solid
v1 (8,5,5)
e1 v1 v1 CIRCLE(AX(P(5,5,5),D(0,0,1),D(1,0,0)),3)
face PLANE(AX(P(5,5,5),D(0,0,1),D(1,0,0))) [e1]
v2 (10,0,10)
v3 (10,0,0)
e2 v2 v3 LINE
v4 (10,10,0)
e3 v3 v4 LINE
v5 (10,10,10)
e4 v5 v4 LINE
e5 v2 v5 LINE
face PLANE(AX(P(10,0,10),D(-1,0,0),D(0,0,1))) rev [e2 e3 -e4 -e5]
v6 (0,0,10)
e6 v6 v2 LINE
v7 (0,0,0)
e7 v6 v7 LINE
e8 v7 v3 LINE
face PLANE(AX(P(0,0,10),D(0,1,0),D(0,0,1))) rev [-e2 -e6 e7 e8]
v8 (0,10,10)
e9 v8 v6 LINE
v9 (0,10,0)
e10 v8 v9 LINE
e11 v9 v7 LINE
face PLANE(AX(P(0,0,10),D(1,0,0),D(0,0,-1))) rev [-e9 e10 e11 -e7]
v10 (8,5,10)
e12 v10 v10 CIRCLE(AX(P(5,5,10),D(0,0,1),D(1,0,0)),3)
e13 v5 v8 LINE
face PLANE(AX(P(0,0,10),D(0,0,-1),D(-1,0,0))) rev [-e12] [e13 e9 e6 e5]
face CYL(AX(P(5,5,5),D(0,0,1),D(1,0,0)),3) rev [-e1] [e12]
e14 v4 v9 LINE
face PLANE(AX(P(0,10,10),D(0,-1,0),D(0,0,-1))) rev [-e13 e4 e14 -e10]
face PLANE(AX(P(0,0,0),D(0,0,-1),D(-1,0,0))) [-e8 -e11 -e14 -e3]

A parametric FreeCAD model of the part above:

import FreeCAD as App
import Part
import Sketcher
Q = App.Units.Quantity

doc = App.newDocument("Part")
body = doc.addObject("PartDesign::Body", "Body")

sketch1 = body.newObject("Sketcher::SketchObject", "Sketch")
sketch1.AttachmentSupport = (doc.getObject("XY_Plane"), [""])
sketch1.MapMode = "FlatFace"
sketch1.addGeometry([
    Part.LineSegment(App.Vector(0, 10, 0), App.Vector(0, 0, 0)),
    Part.LineSegment(App.Vector(0, 0, 0), App.Vector(10, 0, 0)),
    Part.LineSegment(App.Vector(10, 0, 0), App.Vector(10, 10, 0)),
    Part.LineSegment(App.Vector(10, 10, 0), App.Vector(0, 10, 0)),
], False)
sketch1.addConstraint([
    Sketcher.Constraint("Coincident", 0, 2, 1, 1),
    Sketcher.Constraint("Coincident", 1, 2, 2, 1),
    Sketcher.Constraint("Coincident", 2, 2, 3, 1),
    Sketcher.Constraint("Coincident", 3, 2, 0, 1),
    Sketcher.Constraint("Vertical", 0),
    Sketcher.Constraint("Horizontal", 1),
    Sketcher.Constraint("Vertical", 2),
    Sketcher.Constraint("Horizontal", 3),
    Sketcher.Constraint("Coincident", 0, 2, -1, 1),
    Sketcher.Constraint("Equal", 3, 0),
    Sketcher.Constraint("DistanceX", 1, 1, 1, 2, Q("10 mm")),
])
pad1 = body.newObject("PartDesign::Pad", "Pad")
pad1.Profile = sketch1
pad1.Length = 10

sketch2 = body.newObject("Sketcher::SketchObject", "Sketch001")
sketch2.AttachmentSupport = (doc.getObject("XY_Plane"), [""])
sketch2.MapMode = "FlatFace"
sketch2.AttachmentOffset = App.Placement(App.Vector(0, 0, 10), App.Rotation())
sketch2.addGeometry(Part.Circle(App.Vector(5, 5, 0), App.Vector(0, 0, 1), 3), False)
sketch2.addConstraint([
    Sketcher.Constraint("Diameter", 0, Q("6 mm")),
    Sketcher.Constraint("DistanceX", -1, 1, 0, 3, Q("5 mm")),
    Sketcher.Constraint("DistanceY", -1, 1, 0, 3, Q("5 mm")),
])
pocket1 = body.newObject("PartDesign::Pocket", "Pocket")
pocket1.Profile = sketch2
pocket1.Length = 5

doc.recompute()
